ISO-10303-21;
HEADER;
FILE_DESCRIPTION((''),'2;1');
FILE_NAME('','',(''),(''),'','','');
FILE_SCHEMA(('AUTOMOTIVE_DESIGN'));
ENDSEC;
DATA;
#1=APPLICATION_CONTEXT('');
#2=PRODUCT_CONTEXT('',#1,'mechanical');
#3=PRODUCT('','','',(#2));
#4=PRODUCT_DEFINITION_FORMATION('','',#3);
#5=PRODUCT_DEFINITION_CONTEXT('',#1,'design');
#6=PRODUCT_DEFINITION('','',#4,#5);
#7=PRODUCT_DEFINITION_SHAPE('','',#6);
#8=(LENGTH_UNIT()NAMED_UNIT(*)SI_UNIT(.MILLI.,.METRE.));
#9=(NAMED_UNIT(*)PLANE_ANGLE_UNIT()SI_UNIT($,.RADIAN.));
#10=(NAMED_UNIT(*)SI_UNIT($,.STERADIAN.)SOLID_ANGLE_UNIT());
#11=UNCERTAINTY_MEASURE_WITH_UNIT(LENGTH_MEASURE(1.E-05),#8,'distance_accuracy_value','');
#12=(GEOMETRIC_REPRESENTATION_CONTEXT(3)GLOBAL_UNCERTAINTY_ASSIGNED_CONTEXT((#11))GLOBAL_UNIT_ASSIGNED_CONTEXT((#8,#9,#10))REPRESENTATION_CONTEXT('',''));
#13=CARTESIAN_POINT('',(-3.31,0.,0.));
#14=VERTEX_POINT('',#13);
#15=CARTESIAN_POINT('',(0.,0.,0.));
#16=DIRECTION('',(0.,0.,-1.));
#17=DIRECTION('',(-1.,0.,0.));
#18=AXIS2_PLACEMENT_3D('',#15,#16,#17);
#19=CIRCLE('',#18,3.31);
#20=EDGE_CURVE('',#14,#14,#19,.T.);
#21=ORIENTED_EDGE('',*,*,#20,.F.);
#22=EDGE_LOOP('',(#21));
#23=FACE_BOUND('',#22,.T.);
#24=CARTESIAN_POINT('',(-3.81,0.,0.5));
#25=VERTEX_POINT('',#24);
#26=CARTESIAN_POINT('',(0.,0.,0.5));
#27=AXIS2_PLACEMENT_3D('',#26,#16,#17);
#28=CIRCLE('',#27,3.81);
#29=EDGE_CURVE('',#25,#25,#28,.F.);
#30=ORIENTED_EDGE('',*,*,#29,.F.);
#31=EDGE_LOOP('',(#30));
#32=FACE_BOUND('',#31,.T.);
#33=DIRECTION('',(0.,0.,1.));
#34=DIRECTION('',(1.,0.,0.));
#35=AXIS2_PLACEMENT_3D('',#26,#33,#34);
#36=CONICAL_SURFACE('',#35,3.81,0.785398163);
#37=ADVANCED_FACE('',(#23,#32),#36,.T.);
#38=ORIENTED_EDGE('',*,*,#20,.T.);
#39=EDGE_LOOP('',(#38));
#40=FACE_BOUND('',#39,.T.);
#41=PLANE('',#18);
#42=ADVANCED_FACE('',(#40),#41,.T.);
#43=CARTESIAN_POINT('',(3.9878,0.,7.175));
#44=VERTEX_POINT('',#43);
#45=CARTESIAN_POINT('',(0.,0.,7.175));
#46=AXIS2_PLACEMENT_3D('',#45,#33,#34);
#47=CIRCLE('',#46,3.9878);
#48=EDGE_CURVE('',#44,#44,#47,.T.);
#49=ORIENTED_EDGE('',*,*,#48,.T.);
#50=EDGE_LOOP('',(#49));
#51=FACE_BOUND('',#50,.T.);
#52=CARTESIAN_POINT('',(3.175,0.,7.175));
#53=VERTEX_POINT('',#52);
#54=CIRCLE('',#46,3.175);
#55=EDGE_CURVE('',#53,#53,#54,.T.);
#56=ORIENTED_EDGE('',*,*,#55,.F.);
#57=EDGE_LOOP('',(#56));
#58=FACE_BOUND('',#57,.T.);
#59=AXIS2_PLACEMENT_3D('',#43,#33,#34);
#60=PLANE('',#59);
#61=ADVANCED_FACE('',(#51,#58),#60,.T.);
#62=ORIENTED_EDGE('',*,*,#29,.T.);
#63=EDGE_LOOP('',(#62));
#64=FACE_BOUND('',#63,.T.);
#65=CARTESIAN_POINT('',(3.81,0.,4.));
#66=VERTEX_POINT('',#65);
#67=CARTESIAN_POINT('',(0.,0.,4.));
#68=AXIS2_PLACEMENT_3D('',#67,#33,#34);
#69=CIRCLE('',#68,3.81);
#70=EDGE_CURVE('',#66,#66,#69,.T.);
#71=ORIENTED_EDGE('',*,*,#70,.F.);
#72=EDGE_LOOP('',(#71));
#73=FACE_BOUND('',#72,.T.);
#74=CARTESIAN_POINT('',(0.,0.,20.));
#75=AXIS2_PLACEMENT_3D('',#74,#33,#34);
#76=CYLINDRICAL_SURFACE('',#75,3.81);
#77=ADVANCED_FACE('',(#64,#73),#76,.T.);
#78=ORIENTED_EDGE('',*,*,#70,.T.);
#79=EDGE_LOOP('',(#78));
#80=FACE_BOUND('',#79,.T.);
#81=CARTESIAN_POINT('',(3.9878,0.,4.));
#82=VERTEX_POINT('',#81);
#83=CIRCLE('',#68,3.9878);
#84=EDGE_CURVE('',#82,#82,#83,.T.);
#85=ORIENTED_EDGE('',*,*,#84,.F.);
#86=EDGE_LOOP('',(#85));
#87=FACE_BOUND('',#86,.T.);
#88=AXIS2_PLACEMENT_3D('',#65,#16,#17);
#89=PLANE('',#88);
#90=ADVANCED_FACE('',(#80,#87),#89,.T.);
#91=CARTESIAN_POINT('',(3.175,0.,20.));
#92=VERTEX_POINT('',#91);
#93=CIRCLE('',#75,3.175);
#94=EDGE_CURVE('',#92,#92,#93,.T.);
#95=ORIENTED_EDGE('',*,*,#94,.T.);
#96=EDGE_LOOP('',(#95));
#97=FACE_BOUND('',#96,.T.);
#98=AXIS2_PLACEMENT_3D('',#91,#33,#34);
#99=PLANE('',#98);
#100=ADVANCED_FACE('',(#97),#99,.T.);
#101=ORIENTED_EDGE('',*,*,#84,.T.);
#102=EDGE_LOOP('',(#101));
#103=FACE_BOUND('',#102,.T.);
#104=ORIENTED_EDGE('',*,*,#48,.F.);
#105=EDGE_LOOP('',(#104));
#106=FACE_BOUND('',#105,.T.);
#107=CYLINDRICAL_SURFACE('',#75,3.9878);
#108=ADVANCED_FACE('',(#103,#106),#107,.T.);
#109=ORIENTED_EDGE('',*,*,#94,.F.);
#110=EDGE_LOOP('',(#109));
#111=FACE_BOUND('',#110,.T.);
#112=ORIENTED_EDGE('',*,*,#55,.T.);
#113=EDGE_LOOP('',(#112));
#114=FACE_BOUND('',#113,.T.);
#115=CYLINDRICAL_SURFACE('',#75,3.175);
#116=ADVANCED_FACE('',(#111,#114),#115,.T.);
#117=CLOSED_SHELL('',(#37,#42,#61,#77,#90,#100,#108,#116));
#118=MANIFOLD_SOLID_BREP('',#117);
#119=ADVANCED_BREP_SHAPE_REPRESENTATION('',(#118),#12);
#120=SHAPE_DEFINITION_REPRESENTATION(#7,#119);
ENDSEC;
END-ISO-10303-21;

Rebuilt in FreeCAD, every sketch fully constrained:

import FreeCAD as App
import Part
import Sketcher

V = App.Vector
Q = App.Units.Quantity


def edges_at(feature, points):
    """Names of the edges that pass closest to the given points."""
    edges = feature.Shape.Edges
    near = lambda p: min(range(len(edges)), key=lambda i: edges[i].distToShape(Part.Vertex(*p))[0])
    return sorted({f"Edge{near(p) + 1}" for p in points})

doc = App.newDocument("Part")
params = doc.addObject("Spreadsheet::Sheet", "Params")
for row, (alias, value) in enumerate([
    ("sketch1_width", "0.15 in"),
    ("sketch1_width2", "0.125 in"),
    ("sketch1_width3", "0.032 in"),
    ("revolution_angle", "360 deg"),
    ("chamfer_size", "0.5 mm"),
], start=1):
    params.set(f"A{row}", alias)
    params.set(f"B{row}", "=" + value)
    params.setAlias(f"B{row}", alias)

body = doc.addObject("PartDesign::Body", "Body")

sketch1 = body.newObject("Sketcher::SketchObject", "Sketch")
sketch1.AttachmentSupport = (doc.getObject("XZ_Plane"), [""])
sketch1.MapMode = "FlatFace"
sketch1.addGeometry(Part.LineSegment(V(0, 20, 0), V(3.17, 20, 0)), False)
sketch1.addGeometry(Part.LineSegment(V(3.17, 20, 0), V(3.17, 7.17, 0)), False)
sketch1.addGeometry(Part.LineSegment(V(3.17, 7.17, 0), V(3.99, 7.17, 0)), False)
sketch1.addGeometry(Part.LineSegment(V(3.99, 7.17, 0), V(3.99, 4, 0)), False)
sketch1.addGeometry(Part.LineSegment(V(3.99, 4, 0), V(3.81, 4, 0)), False)
sketch1.addGeometry(Part.LineSegment(V(3.81, 4, 0), V(3.81, 0, 0)), False)
sketch1.addGeometry(Part.LineSegment(V(3.81, 0, 0), V(0, 0, 0)), False)
sketch1.addGeometry(Part.LineSegment(V(0, 0, 0), V(0, 20, 0)), False)
sketch1.addConstraint(Sketcher.Constraint("Coincident", 0, 2, 1, 1))
sketch1.addConstraint(Sketcher.Constraint("Coincident", 1, 2, 2, 1))
sketch1.addConstraint(Sketcher.Constraint("Coincident", 2, 2, 3, 1))
sketch1.addConstraint(Sketcher.Constraint("Coincident", 3, 2, 4, 1))
sketch1.addConstraint(Sketcher.Constraint("Coincident", 4, 2, 5, 1))
sketch1.addConstraint(Sketcher.Constraint("Coincident", 5, 2, 6, 1))
sketch1.addConstraint(Sketcher.Constraint("Coincident", 6, 2, 7, 1))
sketch1.addConstraint(Sketcher.Constraint("Coincident", 7, 2, 0, 1))
sketch1.addConstraint(Sketcher.Constraint("Horizontal", 0))
sketch1.addConstraint(Sketcher.Constraint("Vertical", 1))
sketch1.addConstraint(Sketcher.Constraint("Horizontal", 2))
sketch1.addConstraint(Sketcher.Constraint("Vertical", 3))
sketch1.addConstraint(Sketcher.Constraint("Horizontal", 4))
sketch1.addConstraint(Sketcher.Constraint("Vertical", 5))
sketch1.addConstraint(Sketcher.Constraint("Horizontal", 6))
sketch1.addConstraint(Sketcher.Constraint("Vertical", 7))
sketch1.addConstraint(Sketcher.Constraint("Coincident", 6, 2, -1, 1))
sketch1.addConstraint(Sketcher.Constraint("Equal", 0, 3))
sketch1.addConstraint(Sketcher.Constraint("DistanceX", 6, 2, 6, 1, Q("0.15 in")))
sketch1.addConstraint(Sketcher.Constraint("DistanceX", 0, 1, 0, 2, Q("0.125 in")))
sketch1.addConstraint(Sketcher.Constraint("DistanceX", 2, 1, 2, 2, Q("0.032 in")))
sketch1.addConstraint(Sketcher.Constraint("DistanceY", 1, 2, 1, 1, 12.825))
sketch1.addConstraint(Sketcher.Constraint("DistanceY", 5, 2, 5, 1, 4.0))
sketch1.setExpression("Constraints[18]", "Params.sketch1_width")
sketch1.setExpression("Constraints[19]", "Params.sketch1_width2")
sketch1.setExpression("Constraints[20]", "Params.sketch1_width3")
revolution = body.newObject("PartDesign::Revolution", "Revolution")
revolution.Profile = sketch1
revolution.ReferenceAxis = (sketch1, ["V_Axis"])
revolution.setExpression("Angle", "Params.revolution_angle")
doc.recompute()

chamfer = body.newObject("PartDesign::Chamfer", "Chamfer")
chamfer.Base = (revolution, edges_at(revolution, [(-3.81, 0, 0)]))
chamfer.setExpression("Size", "Params.chamfer_size")

doc.recompute()
